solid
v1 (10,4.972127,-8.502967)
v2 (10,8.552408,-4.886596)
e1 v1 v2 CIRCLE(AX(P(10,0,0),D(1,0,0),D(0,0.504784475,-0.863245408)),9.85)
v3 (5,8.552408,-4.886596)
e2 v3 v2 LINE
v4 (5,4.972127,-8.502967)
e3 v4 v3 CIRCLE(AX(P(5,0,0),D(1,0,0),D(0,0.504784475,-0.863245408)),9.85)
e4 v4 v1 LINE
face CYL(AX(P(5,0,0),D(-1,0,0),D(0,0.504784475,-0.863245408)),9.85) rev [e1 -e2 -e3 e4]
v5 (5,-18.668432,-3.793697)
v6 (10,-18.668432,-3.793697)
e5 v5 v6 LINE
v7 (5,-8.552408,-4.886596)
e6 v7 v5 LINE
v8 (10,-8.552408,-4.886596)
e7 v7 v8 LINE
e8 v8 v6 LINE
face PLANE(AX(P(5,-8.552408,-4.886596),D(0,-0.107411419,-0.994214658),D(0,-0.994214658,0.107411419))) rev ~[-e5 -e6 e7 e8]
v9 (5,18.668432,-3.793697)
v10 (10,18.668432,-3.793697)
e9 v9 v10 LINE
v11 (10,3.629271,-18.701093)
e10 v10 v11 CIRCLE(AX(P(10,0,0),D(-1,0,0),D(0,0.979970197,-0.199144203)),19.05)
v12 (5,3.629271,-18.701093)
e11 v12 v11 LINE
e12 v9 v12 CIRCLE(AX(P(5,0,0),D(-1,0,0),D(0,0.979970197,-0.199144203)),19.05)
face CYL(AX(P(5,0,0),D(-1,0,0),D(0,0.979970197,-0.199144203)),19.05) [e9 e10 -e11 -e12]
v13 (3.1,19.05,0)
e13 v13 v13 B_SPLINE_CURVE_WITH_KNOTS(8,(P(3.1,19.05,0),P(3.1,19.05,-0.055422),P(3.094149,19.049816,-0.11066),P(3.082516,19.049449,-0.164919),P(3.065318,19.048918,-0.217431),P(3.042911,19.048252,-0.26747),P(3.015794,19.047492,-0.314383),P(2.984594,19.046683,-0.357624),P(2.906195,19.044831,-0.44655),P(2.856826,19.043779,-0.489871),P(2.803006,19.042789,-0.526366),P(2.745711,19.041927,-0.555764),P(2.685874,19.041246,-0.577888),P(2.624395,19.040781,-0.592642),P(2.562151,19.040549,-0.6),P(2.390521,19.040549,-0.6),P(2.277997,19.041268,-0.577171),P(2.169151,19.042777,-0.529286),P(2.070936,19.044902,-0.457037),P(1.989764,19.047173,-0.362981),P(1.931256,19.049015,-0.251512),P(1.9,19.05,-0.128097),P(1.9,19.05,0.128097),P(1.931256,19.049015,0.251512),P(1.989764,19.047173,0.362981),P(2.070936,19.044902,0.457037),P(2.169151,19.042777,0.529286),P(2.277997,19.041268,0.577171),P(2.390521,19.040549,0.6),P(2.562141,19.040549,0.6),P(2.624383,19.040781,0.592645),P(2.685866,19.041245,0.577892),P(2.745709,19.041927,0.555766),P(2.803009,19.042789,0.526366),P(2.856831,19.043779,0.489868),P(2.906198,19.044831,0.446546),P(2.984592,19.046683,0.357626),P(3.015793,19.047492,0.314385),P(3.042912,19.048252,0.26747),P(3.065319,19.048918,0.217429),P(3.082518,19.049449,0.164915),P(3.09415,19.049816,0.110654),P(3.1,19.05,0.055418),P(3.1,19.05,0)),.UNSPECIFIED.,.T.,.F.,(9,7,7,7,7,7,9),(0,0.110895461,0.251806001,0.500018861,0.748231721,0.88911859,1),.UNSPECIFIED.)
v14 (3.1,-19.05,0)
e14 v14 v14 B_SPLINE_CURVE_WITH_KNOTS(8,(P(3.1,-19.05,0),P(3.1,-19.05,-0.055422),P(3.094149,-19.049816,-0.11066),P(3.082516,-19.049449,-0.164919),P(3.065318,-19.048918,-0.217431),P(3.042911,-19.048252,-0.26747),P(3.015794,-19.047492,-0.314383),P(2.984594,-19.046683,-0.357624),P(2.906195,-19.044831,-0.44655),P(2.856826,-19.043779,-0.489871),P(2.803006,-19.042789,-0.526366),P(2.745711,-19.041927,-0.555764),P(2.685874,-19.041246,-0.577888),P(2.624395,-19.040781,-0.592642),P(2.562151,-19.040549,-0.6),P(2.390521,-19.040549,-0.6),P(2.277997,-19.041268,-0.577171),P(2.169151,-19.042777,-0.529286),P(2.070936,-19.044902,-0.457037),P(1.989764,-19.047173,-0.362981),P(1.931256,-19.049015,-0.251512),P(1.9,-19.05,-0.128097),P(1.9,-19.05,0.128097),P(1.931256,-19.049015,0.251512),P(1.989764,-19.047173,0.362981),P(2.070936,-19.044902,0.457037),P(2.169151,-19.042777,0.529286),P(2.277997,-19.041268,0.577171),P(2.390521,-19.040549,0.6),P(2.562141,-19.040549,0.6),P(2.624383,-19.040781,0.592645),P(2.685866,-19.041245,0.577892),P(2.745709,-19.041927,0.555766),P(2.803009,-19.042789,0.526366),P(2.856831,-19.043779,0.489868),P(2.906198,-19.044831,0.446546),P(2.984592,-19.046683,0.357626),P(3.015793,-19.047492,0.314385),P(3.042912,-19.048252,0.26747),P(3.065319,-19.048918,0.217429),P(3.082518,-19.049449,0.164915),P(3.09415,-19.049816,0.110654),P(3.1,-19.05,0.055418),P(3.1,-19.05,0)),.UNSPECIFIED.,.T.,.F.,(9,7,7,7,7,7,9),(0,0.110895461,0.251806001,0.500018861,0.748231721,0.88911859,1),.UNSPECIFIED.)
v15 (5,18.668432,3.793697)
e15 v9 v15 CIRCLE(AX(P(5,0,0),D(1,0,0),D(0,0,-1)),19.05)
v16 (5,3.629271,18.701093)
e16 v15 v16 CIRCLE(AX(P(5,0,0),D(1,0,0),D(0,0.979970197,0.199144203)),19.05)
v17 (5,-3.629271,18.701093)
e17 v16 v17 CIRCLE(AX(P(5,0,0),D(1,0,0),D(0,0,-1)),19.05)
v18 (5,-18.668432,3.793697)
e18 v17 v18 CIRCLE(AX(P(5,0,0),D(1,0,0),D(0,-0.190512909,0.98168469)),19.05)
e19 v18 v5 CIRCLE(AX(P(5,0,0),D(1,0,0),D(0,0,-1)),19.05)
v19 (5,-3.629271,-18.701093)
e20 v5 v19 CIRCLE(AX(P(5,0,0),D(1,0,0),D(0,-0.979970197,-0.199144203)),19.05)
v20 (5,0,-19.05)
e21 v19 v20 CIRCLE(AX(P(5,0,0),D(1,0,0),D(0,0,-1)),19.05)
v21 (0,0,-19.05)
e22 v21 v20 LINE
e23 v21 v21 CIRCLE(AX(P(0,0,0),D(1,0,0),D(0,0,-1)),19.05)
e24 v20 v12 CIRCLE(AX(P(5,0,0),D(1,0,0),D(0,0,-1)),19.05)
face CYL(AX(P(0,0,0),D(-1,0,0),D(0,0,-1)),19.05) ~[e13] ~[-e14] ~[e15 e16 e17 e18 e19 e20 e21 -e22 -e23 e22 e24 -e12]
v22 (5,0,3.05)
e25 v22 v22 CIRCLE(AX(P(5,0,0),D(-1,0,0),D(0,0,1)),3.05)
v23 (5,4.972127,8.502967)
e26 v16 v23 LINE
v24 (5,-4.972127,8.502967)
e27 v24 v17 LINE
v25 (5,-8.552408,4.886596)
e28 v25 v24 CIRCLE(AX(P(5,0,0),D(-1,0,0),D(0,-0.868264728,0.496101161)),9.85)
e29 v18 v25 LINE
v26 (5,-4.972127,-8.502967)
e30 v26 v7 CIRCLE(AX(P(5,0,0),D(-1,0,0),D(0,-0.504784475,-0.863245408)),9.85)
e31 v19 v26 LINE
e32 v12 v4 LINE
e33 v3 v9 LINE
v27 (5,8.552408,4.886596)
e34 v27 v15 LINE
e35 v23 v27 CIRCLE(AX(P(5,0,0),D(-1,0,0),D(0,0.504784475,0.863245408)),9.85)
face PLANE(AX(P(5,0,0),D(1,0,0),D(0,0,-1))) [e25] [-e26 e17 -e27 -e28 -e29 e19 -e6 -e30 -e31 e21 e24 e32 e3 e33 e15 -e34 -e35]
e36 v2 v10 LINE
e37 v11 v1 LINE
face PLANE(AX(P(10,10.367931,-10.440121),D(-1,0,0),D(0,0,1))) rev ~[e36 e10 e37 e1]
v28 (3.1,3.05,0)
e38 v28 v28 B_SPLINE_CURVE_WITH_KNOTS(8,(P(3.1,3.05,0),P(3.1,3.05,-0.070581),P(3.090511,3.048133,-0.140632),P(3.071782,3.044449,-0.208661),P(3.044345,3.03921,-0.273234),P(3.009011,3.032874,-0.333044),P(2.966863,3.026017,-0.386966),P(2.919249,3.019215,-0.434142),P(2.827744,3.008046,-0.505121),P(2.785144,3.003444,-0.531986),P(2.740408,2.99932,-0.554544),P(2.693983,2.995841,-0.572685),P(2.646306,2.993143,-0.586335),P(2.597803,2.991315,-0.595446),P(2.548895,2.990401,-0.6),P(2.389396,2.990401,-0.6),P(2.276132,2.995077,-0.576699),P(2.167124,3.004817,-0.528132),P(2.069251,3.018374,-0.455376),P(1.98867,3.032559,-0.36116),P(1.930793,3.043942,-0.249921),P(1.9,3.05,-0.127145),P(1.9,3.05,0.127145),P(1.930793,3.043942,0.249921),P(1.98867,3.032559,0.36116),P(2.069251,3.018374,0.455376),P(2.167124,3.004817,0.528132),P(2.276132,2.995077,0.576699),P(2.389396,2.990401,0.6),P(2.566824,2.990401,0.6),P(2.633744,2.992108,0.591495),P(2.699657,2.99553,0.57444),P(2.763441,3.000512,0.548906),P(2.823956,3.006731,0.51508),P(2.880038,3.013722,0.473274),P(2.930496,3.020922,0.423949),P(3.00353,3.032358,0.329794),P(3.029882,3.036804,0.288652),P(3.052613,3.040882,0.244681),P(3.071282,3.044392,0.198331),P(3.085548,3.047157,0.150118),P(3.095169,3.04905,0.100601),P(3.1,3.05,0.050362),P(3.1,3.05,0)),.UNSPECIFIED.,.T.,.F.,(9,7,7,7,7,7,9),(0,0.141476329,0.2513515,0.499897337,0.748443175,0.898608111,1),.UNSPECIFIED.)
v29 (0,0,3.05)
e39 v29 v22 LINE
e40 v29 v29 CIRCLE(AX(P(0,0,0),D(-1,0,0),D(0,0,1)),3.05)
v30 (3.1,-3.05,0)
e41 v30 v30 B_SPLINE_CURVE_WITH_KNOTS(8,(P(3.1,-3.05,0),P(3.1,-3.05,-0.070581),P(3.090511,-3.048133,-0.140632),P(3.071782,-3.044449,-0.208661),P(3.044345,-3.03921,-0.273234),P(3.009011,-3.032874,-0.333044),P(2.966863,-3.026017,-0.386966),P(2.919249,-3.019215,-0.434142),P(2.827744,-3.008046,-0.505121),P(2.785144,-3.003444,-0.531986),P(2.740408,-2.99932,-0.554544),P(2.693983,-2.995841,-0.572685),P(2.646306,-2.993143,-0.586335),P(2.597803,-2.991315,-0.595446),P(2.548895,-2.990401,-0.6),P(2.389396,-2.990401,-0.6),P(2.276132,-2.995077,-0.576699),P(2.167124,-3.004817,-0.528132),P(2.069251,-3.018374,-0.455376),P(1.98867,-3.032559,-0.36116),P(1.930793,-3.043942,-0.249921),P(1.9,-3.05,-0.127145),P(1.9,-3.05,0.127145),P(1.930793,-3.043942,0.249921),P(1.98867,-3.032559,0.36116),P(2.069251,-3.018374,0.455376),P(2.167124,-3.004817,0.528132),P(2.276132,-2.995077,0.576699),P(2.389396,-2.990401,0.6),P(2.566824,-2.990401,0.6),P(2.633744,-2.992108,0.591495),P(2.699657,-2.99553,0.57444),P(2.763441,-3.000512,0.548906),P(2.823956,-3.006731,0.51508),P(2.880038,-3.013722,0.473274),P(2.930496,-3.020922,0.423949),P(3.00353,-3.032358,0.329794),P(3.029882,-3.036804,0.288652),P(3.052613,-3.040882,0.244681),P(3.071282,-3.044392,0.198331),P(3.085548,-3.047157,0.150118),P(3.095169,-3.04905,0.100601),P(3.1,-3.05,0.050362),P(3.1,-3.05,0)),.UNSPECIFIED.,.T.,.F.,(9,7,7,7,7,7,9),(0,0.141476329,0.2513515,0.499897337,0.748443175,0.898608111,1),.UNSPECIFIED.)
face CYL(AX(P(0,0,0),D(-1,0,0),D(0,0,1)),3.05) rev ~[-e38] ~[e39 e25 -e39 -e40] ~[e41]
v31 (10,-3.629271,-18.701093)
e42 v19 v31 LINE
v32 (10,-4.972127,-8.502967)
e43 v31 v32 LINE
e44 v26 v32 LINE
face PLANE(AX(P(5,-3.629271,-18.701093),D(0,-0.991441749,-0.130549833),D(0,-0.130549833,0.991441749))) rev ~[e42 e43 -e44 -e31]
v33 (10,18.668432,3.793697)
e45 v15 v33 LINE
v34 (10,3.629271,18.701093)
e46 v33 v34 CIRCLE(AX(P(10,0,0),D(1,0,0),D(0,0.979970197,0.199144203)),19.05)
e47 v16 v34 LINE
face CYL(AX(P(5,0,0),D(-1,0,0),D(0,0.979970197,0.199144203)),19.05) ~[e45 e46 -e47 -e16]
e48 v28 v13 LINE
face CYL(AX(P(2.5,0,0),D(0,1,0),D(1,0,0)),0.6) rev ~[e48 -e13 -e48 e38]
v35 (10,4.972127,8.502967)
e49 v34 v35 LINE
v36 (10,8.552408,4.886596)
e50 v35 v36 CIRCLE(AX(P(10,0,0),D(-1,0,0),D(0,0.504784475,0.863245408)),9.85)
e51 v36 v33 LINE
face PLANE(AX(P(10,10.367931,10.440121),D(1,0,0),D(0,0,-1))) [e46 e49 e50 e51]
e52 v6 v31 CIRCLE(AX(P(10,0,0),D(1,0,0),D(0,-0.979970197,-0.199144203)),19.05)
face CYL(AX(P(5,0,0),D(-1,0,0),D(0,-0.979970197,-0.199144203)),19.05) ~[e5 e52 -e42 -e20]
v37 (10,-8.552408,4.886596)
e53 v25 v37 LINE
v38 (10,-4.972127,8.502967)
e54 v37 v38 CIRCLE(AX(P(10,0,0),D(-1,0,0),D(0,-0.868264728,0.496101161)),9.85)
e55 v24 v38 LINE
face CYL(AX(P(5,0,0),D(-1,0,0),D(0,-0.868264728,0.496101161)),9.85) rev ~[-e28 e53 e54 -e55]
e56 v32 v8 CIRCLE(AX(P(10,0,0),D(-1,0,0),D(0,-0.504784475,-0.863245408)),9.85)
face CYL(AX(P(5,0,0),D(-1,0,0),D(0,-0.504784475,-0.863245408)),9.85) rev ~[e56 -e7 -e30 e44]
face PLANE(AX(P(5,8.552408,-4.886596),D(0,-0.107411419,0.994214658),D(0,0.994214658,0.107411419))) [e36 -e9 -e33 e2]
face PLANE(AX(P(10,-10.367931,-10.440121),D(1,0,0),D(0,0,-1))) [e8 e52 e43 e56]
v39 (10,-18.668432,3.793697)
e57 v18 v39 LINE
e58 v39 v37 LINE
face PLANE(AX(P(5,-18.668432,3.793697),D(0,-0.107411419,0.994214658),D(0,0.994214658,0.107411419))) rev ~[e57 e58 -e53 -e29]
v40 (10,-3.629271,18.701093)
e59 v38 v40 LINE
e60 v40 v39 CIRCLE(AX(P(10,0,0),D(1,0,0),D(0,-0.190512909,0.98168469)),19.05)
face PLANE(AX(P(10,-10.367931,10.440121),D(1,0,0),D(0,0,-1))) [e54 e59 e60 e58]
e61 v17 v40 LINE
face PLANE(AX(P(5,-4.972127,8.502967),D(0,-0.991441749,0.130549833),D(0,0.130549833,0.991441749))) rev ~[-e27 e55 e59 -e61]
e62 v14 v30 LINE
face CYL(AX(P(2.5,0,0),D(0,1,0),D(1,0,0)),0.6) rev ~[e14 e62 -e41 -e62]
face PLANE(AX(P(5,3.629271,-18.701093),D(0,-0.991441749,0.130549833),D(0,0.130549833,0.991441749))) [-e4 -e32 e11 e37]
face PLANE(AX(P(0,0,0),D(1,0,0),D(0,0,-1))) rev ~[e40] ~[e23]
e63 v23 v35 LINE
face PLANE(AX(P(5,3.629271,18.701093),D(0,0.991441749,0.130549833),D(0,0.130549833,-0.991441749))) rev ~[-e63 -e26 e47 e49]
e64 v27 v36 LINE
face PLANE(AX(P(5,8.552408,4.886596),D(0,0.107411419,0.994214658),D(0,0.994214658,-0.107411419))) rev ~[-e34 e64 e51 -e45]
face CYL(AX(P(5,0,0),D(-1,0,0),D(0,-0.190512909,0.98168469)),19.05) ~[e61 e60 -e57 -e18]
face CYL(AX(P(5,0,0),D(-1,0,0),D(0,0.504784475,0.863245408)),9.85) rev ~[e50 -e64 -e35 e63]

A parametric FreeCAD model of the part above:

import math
import FreeCAD as App
import Part
import Sketcher

V = App.Vector
Q = App.Units.Quantity

doc = App.newDocument("Part")
params = doc.addObject("Spreadsheet::Sheet", "Params")
for row, (alias, value) in enumerate([
    ("sketch1_diameter", "38.1 mm"),
    ("pad1_length", "5 mm"),
    ("sketch2_radius", "9.85 mm"),
    ("sketch2_radius2", "19.05 mm"),
    ("pad2_length", "5 mm"),
    ("sketch3_diameter", "6.1 mm"),
    ("pocket1_length", "25 mm"),
    ("sketch4_diameter", "1.2 mm"),
    ("pocket2_length", "50 mm"),
], start=1):
    params.set(f"A{row}", alias)
    params.set(f"B{row}", "=" + value)
    params.setAlias(f"B{row}", alias)

body = doc.addObject("PartDesign::Body", "Body")

# Sketch on YZ plane
sketch1 = body.newObject("Sketcher::SketchObject", "Sketch")
sketch1.AttachmentSupport = (doc.getObject("YZ_Plane"), [""])
sketch1.MapMode = "FlatFace"
sketch1.addGeometry(Part.Circle(V(0, 0, 0), V(0, 0, 1), 19.05), False)
sketch1.addConstraint([
    Sketcher.Constraint("Coincident", 0, 3, -1, 1),
    Sketcher.Constraint("Diameter", 0, Q("38.1 mm")),
])
sketch1.setExpression("Constraints[1]", "Params.sketch1_diameter")
pad1 = body.newObject("PartDesign::Pad", "Pad")
pad1.Profile = sketch1
pad1.setExpression("Length", "Params.pad1_length")

# Sketch on YZ plane
sketch2 = body.newObject("Sketcher::SketchObject", "Sketch001")
sketch2.AttachmentSupport = (doc.getObject("YZ_Plane"), [""])
sketch2.MapMode = "FlatFace"
sketch2.AttachmentOffset = App.Placement(V(0, 0, 5), App.Rotation())
sketch2.addGeometry([
    Part.LineSegment(V(18.668432, -3.793697, 0), V(8.552408, -4.886596, 0)),  # 0
    Part.ArcOfCircle(Part.Circle(V(0, 0, 0), V(0, 0, 1), 9.85), math.radians(-59.682954), math.radians(-29.742388)),  # 1
    Part.LineSegment(V(4.972127, -8.502967, 0), V(3.629271, -18.701093, 0)),  # 2
    Part.ArcOfCircle(Part.Circle(V(0, 0, 0), V(0, 0, 1), 19.05), math.radians(-79.017282), math.radians(-11.486919)),  # 3
    Part.LineSegment(V(8.552408, 4.886596, 0), V(18.668432, 3.793697, 0)),  # 4
    Part.ArcOfCircle(Part.Circle(V(0, 0, 0), V(0, 0, 1), 19.05), math.radians(11.486919), math.radians(79.017282)),  # 5
    Part.LineSegment(V(3.629271, 18.701093, 0), V(4.972127, 8.502967, 0)),  # 6
    Part.ArcOfCircle(Part.Circle(V(0, 0, 0), V(0, 0, 1), 9.85), math.radians(29.742388), math.radians(59.682954)),  # 7
    Part.LineSegment(V(-4.972127, 8.502967, 0), V(-3.629271, 18.701093, 0)),  # 8
    Part.ArcOfCircle(Part.Circle(V(0, 0, 0), V(0, 0, 1), 19.05), math.radians(100.982718), math.radians(168.513081)),  # 9
    Part.LineSegment(V(-18.668432, 3.793697, 0), V(-8.552408, 4.886596, 0)),  # 10
    Part.ArcOfCircle(Part.Circle(V(0, 0, 0), V(0, 0, 1), 9.85), math.radians(120.317046), math.radians(150.257612)),  # 11
    Part.LineSegment(V(-8.552408, -4.886596, 0), V(-18.668432, -3.793697, 0)),  # 12
    Part.ArcOfCircle(Part.Circle(V(0, 0, 0), V(0, 0, 1), 19.05), math.radians(-168.513081), math.radians(-100.982718)),  # 13
    Part.LineSegment(V(-3.629271, -18.701093, 0), V(-4.972127, -8.502967, 0)),  # 14
    Part.ArcOfCircle(Part.Circle(V(0, 0, 0), V(0, 0, 1), 9.85), math.radians(-150.257612), math.radians(-120.317046)),  # 15
], False)
sketch2.addConstraint([
    Sketcher.Constraint("Coincident", 0, 2, 1, 2),
    Sketcher.Constraint("Coincident", 1, 1, 2, 1),
    Sketcher.Constraint("Coincident", 2, 2, 3, 1),
    Sketcher.Constraint("Coincident", 3, 2, 0, 1),
    Sketcher.Constraint("Coincident", 4, 2, 5, 1),
    Sketcher.Constraint("Coincident", 5, 2, 6, 1),
    Sketcher.Constraint("Coincident", 6, 2, 7, 2),
    Sketcher.Constraint("Coincident", 7, 1, 4, 1),
    Sketcher.Constraint("Coincident", 8, 2, 9, 1),
    Sketcher.Constraint("Coincident", 9, 2, 10, 1),
    Sketcher.Constraint("Coincident", 10, 2, 11, 2),
    Sketcher.Constraint("Coincident", 11, 1, 8, 1),
    Sketcher.Constraint("Coincident", 12, 2, 13, 1),
    Sketcher.Constraint("Coincident", 13, 2, 14, 1),
    Sketcher.Constraint("Coincident", 14, 2, 15, 2),
    Sketcher.Constraint("Coincident", 15, 1, 12, 1),
    Sketcher.Constraint("Coincident", 1, 3, -1, 1),
    Sketcher.Constraint("Coincident", 3, 3, -1, 1),
    Sketcher.Constraint("Coincident", 5, 3, -1, 1),
    Sketcher.Constraint("Coincident", 7, 3, -1, 1),
    Sketcher.Constraint("Coincident", 9, 3, -1, 1),
    Sketcher.Constraint("Coincident", 11, 3, -1, 1),
    Sketcher.Constraint("Coincident", 13, 3, -1, 1),
    Sketcher.Constraint("Coincident", 15, 3, -1, 1),
    Sketcher.Constraint("Equal", 3, 5),
    Sketcher.Constraint("Equal", 1, 7),
    Sketcher.Constraint("Equal", 5, 9),
    Sketcher.Constraint("Equal", 7, 11),
    Sketcher.Constraint("Equal", 9, 13),
    Sketcher.Constraint("Equal", 11, 15),
    Sketcher.Constraint("Parallel", 2, 8),
    Sketcher.Constraint("Parallel", 0, 10),
    Sketcher.Constraint("Parallel", 4, 12),
    Sketcher.Constraint("Parallel", 6, 14),
    Sketcher.Constraint("Horizontal", 5, 2, 8, 2),
    Sketcher.Constraint("Horizontal", 4, 2, 9, 2),
    Sketcher.Constraint("Horizontal", 7, 1, 10, 2),
    Sketcher.Constraint("Horizontal", 6, 2, 11, 1),
    Sketcher.Constraint("Horizontal", 3, 2, 12, 2),
    Sketcher.Constraint("Horizontal", 2, 2, 13, 2),
    Sketcher.Constraint("Vertical", 3, 2, 4, 2),
    Sketcher.Constraint("Vertical", 2, 2, 5, 2),
    Sketcher.Constraint("Radius", 1, Q("9.85 mm")),
    Sketcher.Constraint("Radius", 3, Q("19.05 mm")),
    Sketcher.Constraint("DistanceY", 0, 2, 3, 2, Q("1.092899 mm")),
    Sketcher.Constraint("Distance", 0, Q("10.17489 mm")),
    Sketcher.Constraint("DistanceX", -1, 1, 2, 2, Q("3.629271 mm")),
    Sketcher.Constraint("DistanceX", 1, 1, 0, 2, Q("3.58028 mm")),
])
sketch2.setExpression("Constraints[42]", "Params.sketch2_radius")
sketch2.setExpression("Constraints[43]", "Params.sketch2_radius2")
pad2 = body.newObject("PartDesign::Pad", "Pad001")
pad2.Profile = sketch2
pad2.setExpression("Length", "Params.pad2_length")

# Sketch on YZ plane
sketch3 = body.newObject("Sketcher::SketchObject", "Sketch002")
sketch3.AttachmentSupport = (doc.getObject("YZ_Plane"), [""])
sketch3.MapMode = "FlatFace"
sketch3.addGeometry(Part.Circle(V(0, 0, 0), V(0, 0, 1), 3.05), False)
sketch3.addConstraint([
    Sketcher.Constraint("Coincident", 0, 3, -1, 1),
    Sketcher.Constraint("Diameter", 0, Q("6.1 mm")),
])
sketch3.setExpression("Constraints[1]", "Params.sketch3_diameter")
pocket1 = body.newObject("PartDesign::Pocket", "Pocket")
pocket1.Profile = sketch3
pocket1.setExpression("Length", "Params.pocket1_length")
pocket1.Reversed = True

# Sketch on XZ plane
sketch4 = body.newObject("Sketcher::SketchObject", "Sketch003")
sketch4.AttachmentSupport = (doc.getObject("XZ_Plane"), [""])
sketch4.MapMode = "FlatFace"
sketch4.addGeometry(Part.Circle(V(2.5, 0, 0), V(0, 0, 1), 0.6), False)
sketch4.addConstraint([
    Sketcher.Constraint("PointOnObject", 0, 3, -1),
    Sketcher.Constraint("Diameter", 0, Q("1.2 mm")),
    Sketcher.Constraint("DistanceX", -1, 1, 0, 3, Q("2.5 mm")),
])
sketch4.setExpression("Constraints[1]", "Params.sketch4_diameter")
pocket2 = body.newObject("PartDesign::Pocket", "Pocket001")
pocket2.Profile = sketch4
pocket2.setExpression("Length", "Params.pocket2_length")
pocket2.Midplane = True

doc.recompute()
